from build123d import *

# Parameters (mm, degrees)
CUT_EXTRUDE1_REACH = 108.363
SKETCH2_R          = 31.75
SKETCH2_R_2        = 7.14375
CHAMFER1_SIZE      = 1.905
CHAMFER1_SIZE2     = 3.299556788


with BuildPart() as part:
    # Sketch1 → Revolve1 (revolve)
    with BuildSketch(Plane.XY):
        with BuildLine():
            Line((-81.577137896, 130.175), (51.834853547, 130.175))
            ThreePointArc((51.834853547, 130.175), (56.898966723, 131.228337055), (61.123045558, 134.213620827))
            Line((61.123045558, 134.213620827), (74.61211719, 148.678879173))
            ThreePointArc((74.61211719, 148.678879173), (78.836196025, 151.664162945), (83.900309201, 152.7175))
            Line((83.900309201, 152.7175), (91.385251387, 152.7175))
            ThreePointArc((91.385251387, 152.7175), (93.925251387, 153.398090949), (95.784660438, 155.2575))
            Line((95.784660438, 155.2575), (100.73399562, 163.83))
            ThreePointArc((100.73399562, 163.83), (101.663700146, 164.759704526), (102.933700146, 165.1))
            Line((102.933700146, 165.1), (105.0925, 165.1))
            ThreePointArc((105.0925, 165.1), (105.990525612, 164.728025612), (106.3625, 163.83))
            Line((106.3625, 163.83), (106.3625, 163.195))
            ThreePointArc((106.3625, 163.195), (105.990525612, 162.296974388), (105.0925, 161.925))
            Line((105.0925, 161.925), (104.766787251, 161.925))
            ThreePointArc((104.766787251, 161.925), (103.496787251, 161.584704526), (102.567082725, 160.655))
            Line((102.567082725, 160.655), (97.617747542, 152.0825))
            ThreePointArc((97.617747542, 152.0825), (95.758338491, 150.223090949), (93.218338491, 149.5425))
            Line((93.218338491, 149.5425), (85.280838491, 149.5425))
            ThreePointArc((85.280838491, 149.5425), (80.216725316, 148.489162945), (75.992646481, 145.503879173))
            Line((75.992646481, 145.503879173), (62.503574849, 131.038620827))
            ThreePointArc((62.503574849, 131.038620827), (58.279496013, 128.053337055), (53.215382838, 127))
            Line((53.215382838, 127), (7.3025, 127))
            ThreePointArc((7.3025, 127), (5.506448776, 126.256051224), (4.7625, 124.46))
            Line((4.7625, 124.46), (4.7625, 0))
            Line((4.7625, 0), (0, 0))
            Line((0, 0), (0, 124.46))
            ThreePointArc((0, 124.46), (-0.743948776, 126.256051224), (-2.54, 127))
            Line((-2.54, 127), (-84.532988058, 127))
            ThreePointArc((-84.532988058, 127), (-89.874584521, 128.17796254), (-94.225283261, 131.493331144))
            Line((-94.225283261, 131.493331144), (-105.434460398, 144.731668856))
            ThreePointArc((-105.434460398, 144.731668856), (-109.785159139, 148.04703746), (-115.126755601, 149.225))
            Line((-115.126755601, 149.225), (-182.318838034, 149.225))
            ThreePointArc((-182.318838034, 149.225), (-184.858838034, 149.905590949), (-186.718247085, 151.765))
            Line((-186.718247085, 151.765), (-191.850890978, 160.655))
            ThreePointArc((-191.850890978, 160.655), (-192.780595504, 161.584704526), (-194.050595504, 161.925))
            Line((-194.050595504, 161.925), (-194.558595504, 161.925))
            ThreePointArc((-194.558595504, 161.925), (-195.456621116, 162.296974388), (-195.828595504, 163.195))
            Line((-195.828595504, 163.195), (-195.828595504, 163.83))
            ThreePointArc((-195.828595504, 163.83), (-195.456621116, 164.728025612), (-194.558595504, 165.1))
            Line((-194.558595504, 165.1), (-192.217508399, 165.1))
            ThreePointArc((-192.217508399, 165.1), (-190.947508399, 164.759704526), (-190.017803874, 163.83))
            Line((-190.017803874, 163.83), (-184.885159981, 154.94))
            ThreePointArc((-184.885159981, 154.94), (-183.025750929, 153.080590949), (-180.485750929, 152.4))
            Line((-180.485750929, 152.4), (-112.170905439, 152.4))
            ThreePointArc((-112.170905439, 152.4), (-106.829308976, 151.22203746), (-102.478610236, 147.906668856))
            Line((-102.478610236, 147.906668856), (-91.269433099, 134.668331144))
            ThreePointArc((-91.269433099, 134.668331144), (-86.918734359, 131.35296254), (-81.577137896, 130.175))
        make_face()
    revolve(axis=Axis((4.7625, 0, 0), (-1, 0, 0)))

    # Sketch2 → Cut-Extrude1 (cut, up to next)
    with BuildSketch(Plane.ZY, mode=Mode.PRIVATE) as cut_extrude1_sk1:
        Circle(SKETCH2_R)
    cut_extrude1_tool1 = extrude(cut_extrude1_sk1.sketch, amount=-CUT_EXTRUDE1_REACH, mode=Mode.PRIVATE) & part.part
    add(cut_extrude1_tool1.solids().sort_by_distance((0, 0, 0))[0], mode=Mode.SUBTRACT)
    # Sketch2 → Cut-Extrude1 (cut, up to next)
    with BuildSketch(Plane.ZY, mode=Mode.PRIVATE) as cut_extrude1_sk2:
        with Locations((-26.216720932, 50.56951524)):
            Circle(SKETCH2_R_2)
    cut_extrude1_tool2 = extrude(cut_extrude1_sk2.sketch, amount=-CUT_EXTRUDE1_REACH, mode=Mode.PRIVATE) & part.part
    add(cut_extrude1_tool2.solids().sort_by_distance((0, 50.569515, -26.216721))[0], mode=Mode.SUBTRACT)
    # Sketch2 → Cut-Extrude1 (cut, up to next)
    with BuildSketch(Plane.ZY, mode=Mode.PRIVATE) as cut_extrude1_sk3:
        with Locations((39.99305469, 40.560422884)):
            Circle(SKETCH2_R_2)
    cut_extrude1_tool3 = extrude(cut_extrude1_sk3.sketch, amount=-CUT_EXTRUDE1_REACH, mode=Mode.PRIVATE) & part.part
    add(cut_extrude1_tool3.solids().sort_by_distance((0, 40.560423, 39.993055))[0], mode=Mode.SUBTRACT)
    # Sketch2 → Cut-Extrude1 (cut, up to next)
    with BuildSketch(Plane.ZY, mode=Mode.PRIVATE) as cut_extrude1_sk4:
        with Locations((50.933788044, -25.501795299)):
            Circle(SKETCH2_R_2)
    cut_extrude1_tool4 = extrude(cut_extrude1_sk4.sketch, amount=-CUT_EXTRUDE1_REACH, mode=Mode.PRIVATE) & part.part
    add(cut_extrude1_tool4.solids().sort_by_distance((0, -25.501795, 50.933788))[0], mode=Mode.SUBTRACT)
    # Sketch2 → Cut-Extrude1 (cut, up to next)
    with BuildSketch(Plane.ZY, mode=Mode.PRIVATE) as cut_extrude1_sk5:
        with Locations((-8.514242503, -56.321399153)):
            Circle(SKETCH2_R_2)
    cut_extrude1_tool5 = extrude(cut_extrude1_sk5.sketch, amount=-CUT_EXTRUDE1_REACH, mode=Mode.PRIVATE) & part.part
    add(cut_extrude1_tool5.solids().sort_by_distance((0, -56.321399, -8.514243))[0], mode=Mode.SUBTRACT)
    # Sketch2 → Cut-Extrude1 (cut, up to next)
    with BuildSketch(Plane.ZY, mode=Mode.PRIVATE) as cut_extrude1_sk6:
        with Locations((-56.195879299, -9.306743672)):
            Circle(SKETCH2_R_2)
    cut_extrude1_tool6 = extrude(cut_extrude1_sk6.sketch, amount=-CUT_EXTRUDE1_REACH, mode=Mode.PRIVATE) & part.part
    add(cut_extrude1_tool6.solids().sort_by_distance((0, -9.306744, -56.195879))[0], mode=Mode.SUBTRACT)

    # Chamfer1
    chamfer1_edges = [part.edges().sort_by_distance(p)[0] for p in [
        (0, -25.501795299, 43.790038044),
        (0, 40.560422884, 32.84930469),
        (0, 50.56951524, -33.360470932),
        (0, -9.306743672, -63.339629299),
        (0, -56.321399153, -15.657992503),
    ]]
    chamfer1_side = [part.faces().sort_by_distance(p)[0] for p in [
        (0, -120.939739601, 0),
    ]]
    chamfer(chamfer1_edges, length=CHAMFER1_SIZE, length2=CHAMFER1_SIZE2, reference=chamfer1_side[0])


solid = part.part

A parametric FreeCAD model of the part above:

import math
import FreeCAD as App
import Part
import Sketcher

V = App.Vector
Q = App.Units.Quantity


def edges_at(feature, points):
    """Names of the edges that pass closest to the given points."""
    edges = feature.Shape.Edges
    near = lambda p: min(range(len(edges)), key=lambda i: edges[i].distToShape(Part.Vertex(*p))[0])
    return sorted({f"Edge{near(p) + 1}" for p in points})

doc = App.newDocument("Part")
body = doc.addObject("PartDesign::Body", "Body")

# Sketch on XY plane
sketch1 = body.newObject("Sketcher::SketchObject", "Sketch")
sketch1.AttachmentSupport = (doc.getObject("XY_Plane"), [""])
sketch1.MapMode = "FlatFace"
sketch1.addGeometry(Part.LineSegment(V(51.83, 130.18, 0), V(-81.58, 130.18, 0)), False)
sketch1.addGeometry(Part.ArcOfCircle(Part.Circle(V(-81.58, 142.88, 0), V(0, 0, 1), 12.7), math.radians(-140), math.radians(-90)), False)
sketch1.addGeometry(Part.LineSegment(V(-91.27, 134.67, 0), V(-102.48, 147.91, 0)), False)
sketch1.addGeometry(Part.ArcOfCircle(Part.Circle(V(-112.17, 139.7, 0), V(0, 0, 1), 12.7), math.radians(40), math.radians(90)), False)
sketch1.addGeometry(Part.LineSegment(V(-112.17, 152.4, 0), V(-180.49, 152.4, 0)), False)
sketch1.addGeometry(Part.ArcOfCircle(Part.Circle(V(-180.49, 157.48, 0), V(0, 0, 1), 5.08), math.radians(-150), math.radians(-90)), False)
sketch1.addGeometry(Part.LineSegment(V(-184.89, 154.94, 0), V(-190.02, 163.83, 0)), False)
sketch1.addGeometry(Part.ArcOfCircle(Part.Circle(V(-192.22, 162.56, 0), V(0, 0, 1), 2.54), math.radians(30), math.radians(90)), False)
sketch1.addGeometry(Part.LineSegment(V(-192.22, 165.1, 0), V(-194.56, 165.1, 0)), False)
sketch1.addGeometry(Part.ArcOfCircle(Part.Circle(V(-194.56, 163.83, 0), V(0, 0, 1), 1.27), math.radians(90), math.radians(180)), False)
sketch1.addGeometry(Part.LineSegment(V(-195.83, 163.83, 0), V(-195.83, 163.19, 0)), False)
sketch1.addGeometry(Part.ArcOfCircle(Part.Circle(V(-194.56, 163.19, 0), V(0, 0, 1), 1.27), math.radians(180), math.radians(270)), False)
sketch1.addGeometry(Part.LineSegment(V(-194.56, 161.93, 0), V(-194.05, 161.93, 0)), False)
sketch1.addGeometry(Part.ArcOfCircle(Part.Circle(V(-194.05, 159.39, 0), V(0, 0, 1), 2.54), math.radians(30), math.radians(90)), False)
sketch1.addGeometry(Part.LineSegment(V(-191.85, 160.66, 0), V(-186.72, 151.76, 0)), False)
sketch1.addGeometry(Part.ArcOfCircle(Part.Circle(V(-182.32, 154.31, 0), V(0, 0, 1), 5.08), math.radians(-150), math.radians(-90)), False)
sketch1.addGeometry(Part.LineSegment(V(-182.32, 149.22, 0), V(-115.13, 149.22, 0)), False)
sketch1.addGeometry(Part.ArcOfCircle(Part.Circle(V(-115.13, 136.52, 0), V(0, 0, 1), 12.7), math.radians(40), math.radians(90)), False)
sketch1.addGeometry(Part.LineSegment(V(-105.43, 144.73, 0), V(-94.23, 131.49, 0)), False)
sketch1.addGeometry(Part.ArcOfCircle(Part.Circle(V(-84.53, 139.7, 0), V(0, 0, 1), 12.7), math.radians(-140), math.radians(-90)), False)
sketch1.addGeometry(Part.LineSegment(V(-84.53, 127, 0), V(-2.54, 127, 0)), False)
sketch1.addGeometry(Part.ArcOfCircle(Part.Circle(V(-2.54, 124.46, 0), V(0, 0, 1), 2.54), math.radians(0), math.radians(90)), False)
sketch1.addGeometry(Part.LineSegment(V(0, 124.46, 0), V(0, 0, 0)), False)
sketch1.addGeometry(Part.LineSegment(V(0, 0, 0), V(4.76, 0, 0)), False)
sketch1.addGeometry(Part.LineSegment(V(4.76, 0, 0), V(4.76, 124.46, 0)), False)
sketch1.addGeometry(Part.ArcOfCircle(Part.Circle(V(7.3, 124.46, 0), V(0, 0, 1), 2.54), math.radians(90), math.radians(180)), False)
sketch1.addGeometry(Part.LineSegment(V(7.3, 127, 0), V(53.22, 127, 0)), False)
sketch1.addGeometry(Part.ArcOfCircle(Part.Circle(V(53.22, 139.7, 0), V(0, 0, 1), 12.7), math.radians(-90), math.radians(-43)), False)
sketch1.addGeometry(Part.LineSegment(V(62.5, 131.04, 0), V(75.99, 145.5, 0)), False)
sketch1.addGeometry(Part.ArcOfCircle(Part.Circle(V(85.28, 136.84, 0), V(0, 0, 1), 12.7), math.radians(90), math.radians(137)), False)
sketch1.addGeometry(Part.LineSegment(V(85.28, 149.54, 0), V(93.22, 149.54, 0)), False)
sketch1.addGeometry(Part.ArcOfCircle(Part.Circle(V(93.22, 154.62, 0), V(0, 0, 1), 5.08), math.radians(-90), math.radians(-30)), False)
sketch1.addGeometry(Part.LineSegment(V(97.62, 152.08, 0), V(102.57, 160.66, 0)), False)
sketch1.addGeometry(Part.ArcOfCircle(Part.Circle(V(104.77, 159.39, 0), V(0, 0, 1), 2.54), math.radians(90), math.radians(150)), False)
sketch1.addGeometry(Part.LineSegment(V(104.77, 161.93, 0), V(105.09, 161.93, 0)), False)
sketch1.addGeometry(Part.ArcOfCircle(Part.Circle(V(105.09, 163.19, 0), V(0, 0, 1), 1.27), math.radians(-90), math.radians(0)), False)
sketch1.addGeometry(Part.LineSegment(V(106.36, 163.19, 0), V(106.36, 163.83, 0)), False)
sketch1.addGeometry(Part.ArcOfCircle(Part.Circle(V(105.09, 163.83, 0), V(0, 0, 1), 1.27), math.radians(0), math.radians(90)), False)
sketch1.addGeometry(Part.LineSegment(V(105.09, 165.1, 0), V(102.93, 165.1, 0)), False)
sketch1.addGeometry(Part.ArcOfCircle(Part.Circle(V(102.93, 162.56, 0), V(0, 0, 1), 2.54), math.radians(90), math.radians(150)), False)
sketch1.addGeometry(Part.LineSegment(V(100.73, 163.83, 0), V(95.78, 155.26, 0)), False)
sketch1.addGeometry(Part.ArcOfCircle(Part.Circle(V(91.39, 157.8, 0), V(0, 0, 1), 5.08), math.radians(-90), math.radians(-30)), False)
sketch1.addGeometry(Part.LineSegment(V(91.39, 152.72, 0), V(83.9, 152.72, 0)), False)
sketch1.addGeometry(Part.ArcOfCircle(Part.Circle(V(83.9, 140.02, 0), V(0, 0, 1), 12.7), math.radians(90), math.radians(137)), False)
sketch1.addGeometry(Part.LineSegment(V(74.61, 148.68, 0), V(61.12, 134.21, 0)), False)
sketch1.addGeometry(Part.ArcOfCircle(Part.Circle(V(51.83, 142.87, 0), V(0, 0, 1), 12.7), math.radians(-90), math.radians(-43)), False)
sketch1.addConstraint(Sketcher.Constraint("Tangent", 0, 2, 1, 2))
sketch1.addConstraint(Sketcher.Constraint("Tangent", 1, 1, 2, 1))
sketch1.addConstraint(Sketcher.Constraint("Tangent", 2, 2, 3, 1))
sketch1.addConstraint(Sketcher.Constraint("Tangent", 3, 2, 4, 1))
sketch1.addConstraint(Sketcher.Constraint("Tangent", 4, 2, 5, 2))
sketch1.addConstraint(Sketcher.Constraint("Tangent", 5, 1, 6, 1))
sketch1.addConstraint(Sketcher.Constraint("Tangent", 6, 2, 7, 1))
sketch1.addConstraint(Sketcher.Constraint("Tangent", 7, 2, 8, 1))
sketch1.addConstraint(Sketcher.Constraint("Tangent", 8, 2, 9, 1))
sketch1.addConstraint(Sketcher.Constraint("Tangent", 9, 2, 10, 1))
sketch1.addConstraint(Sketcher.Constraint("Tangent", 10, 2, 11, 1))
sketch1.addConstraint(Sketcher.Constraint("Tangent", 11, 2, 12, 1))
sketch1.addConstraint(Sketcher.Constraint("Tangent", 12, 2, 13, 2))
sketch1.addConstraint(Sketcher.Constraint("Tangent", 13, 1, 14, 1))
sketch1.addConstraint(Sketcher.Constraint("Tangent", 14, 2, 15, 1))
sketch1.addConstraint(Sketcher.Constraint("Tangent", 15, 2, 16, 1))
sketch1.addConstraint(Sketcher.Constraint("Tangent", 16, 2, 17, 2))
sketch1.addConstraint(Sketcher.Constraint("Tangent", 17, 1, 18, 1))
sketch1.addConstraint(Sketcher.Constraint("Tangent", 18, 2, 19, 1))
sketch1.addConstraint(Sketcher.Constraint("Tangent", 19, 2, 20, 1))
sketch1.addConstraint(Sketcher.Constraint("Tangent", 20, 2, 21, 2))
sketch1.addConstraint(Sketcher.Constraint("Tangent", 21, 1, 22, 1))
sketch1.addConstraint(Sketcher.Constraint("Coincident", 22, 2, 23, 1))
sketch1.addConstraint(Sketcher.Constraint("Coincident", 23, 2, 24, 1))
sketch1.addConstraint(Sketcher.Constraint("Tangent", 24, 2, 25, 2))
sketch1.addConstraint(Sketcher.Constraint("Tangent", 25, 1, 26, 1))
sketch1.addConstraint(Sketcher.Constraint("Tangent", 26, 2, 27, 1))
sketch1.addConstraint(Sketcher.Constraint("Tangent", 27, 2, 28, 1))
sketch1.addConstraint(Sketcher.Constraint("Tangent", 28, 2, 29, 2))
sketch1.addConstraint(Sketcher.Constraint("Tangent", 29, 1, 30, 1))
sketch1.addConstraint(Sketcher.Constraint("Tangent", 30, 2, 31, 1))
sketch1.addConstraint(Sketcher.Constraint("Tangent", 31, 2, 32, 1))
sketch1.addConstraint(Sketcher.Constraint("Tangent", 32, 2, 33, 2))
sketch1.addConstraint(Sketcher.Constraint("Tangent", 33, 1, 34, 1))
sketch1.addConstraint(Sketcher.Constraint("Tangent", 34, 2, 35, 1))
sketch1.addConstraint(Sketcher.Constraint("Tangent", 35, 2, 36, 1))
sketch1.addConstraint(Sketcher.Constraint("Tangent", 36, 2, 37, 1))
sketch1.addConstraint(Sketcher.Constraint("Tangent", 37, 2, 38, 1))
sketch1.addConstraint(Sketcher.Constraint("Tangent", 38, 2, 39, 1))
sketch1.addConstraint(Sketcher.Constraint("Tangent", 39, 2, 40, 1))
sketch1.addConstraint(Sketcher.Constraint("Tangent", 40, 2, 41, 2))
sketch1.addConstraint(Sketcher.Constraint("Tangent", 41, 1, 42, 1))
sketch1.addConstraint(Sketcher.Constraint("Tangent", 42, 2, 43, 1))
sketch1.addConstraint(Sketcher.Constraint("Tangent", 43, 2, 44, 1))
sketch1.addConstraint(Sketcher.Constraint("Tangent", 44, 2, 45, 2))
sketch1.addConstraint(Sketcher.Constraint("Tangent", 45, 1, 0, 1))
sketch1.addConstraint(Sketcher.Constraint("Horizontal", 0))
sketch1.addConstraint(Sketcher.Constraint("Horizontal", 4))
sketch1.addConstraint(Sketcher.Constraint("Horizontal", 8))
sketch1.addConstraint(Sketcher.Constraint("Vertical", 10))
sketch1.addConstraint(Sketcher.Constraint("Horizontal", 12))
sketch1.addConstraint(Sketcher.Constraint("Horizontal", 16))
sketch1.addConstraint(Sketcher.Constraint("Horizontal", 20))
sketch1.addConstraint(Sketcher.Constraint("Vertical", 22))
sketch1.addConstraint(Sketcher.Constraint("Horizontal", 23))
sketch1.addConstraint(Sketcher.Constraint("Vertical", 24))
sketch1.addConstraint(Sketcher.Constraint("Horizontal", 26))
sketch1.addConstraint(Sketcher.Constraint("Horizontal", 30))
sketch1.addConstraint(Sketcher.Constraint("Horizontal", 34))
sketch1.addConstraint(Sketcher.Constraint("Vertical", 36))
sketch1.addConstraint(Sketcher.Constraint("Horizontal", 38))
sketch1.addConstraint(Sketcher.Constraint("Horizontal", 42))
sketch1.addConstraint(Sketcher.Constraint("Coincident", 22, 2, -1, 1))
sketch1.addConstraint(Sketcher.Constraint("Equal", 1, 3))
sketch1.addConstraint(Sketcher.Constraint("Equal", 9, 11))
sketch1.addConstraint(Sketcher.Constraint("Equal", 7, 13))
sketch1.addConstraint(Sketcher.Constraint("Equal", 5, 15))
sketch1.addConstraint(Sketcher.Constraint("Equal", 3, 17))
sketch1.addConstraint(Sketcher.Constraint("Equal", 17, 19))
sketch1.addConstraint(Sketcher.Constraint("Equal", 13, 21))
sketch1.addConstraint(Sketcher.Constraint("Equal", 21, 25))
sketch1.addConstraint(Sketcher.Constraint("Equal", 19, 27))
sketch1.addConstraint(Sketcher.Constraint("Equal", 27, 29))
sketch1.addConstraint(Sketcher.Constraint("Equal", 15, 31))
sketch1.addConstraint(Sketcher.Constraint("Equal", 25, 33))
sketch1.addConstraint(Sketcher.Constraint("Equal", 11, 35))
sketch1.addConstraint(Sketcher.Constraint("Equal", 35, 37))
sketch1.addConstraint(Sketcher.Constraint("Equal", 33, 39))
sketch1.addConstraint(Sketcher.Constraint("Equal", 31, 41))
sketch1.addConstraint(Sketcher.Constraint("Equal", 29, 43))
sketch1.addConstraint(Sketcher.Constraint("Equal", 43, 45))
sketch1.addConstraint(Sketcher.Constraint("Parallel", 6, 14))
sketch1.addConstraint(Sketcher.Constraint("Parallel", 2, 18))
sketch1.addConstraint(Sketcher.Constraint("Parallel", 32, 40))
sketch1.addConstraint(Sketcher.Constraint("Parallel", 28, 44))
sketch1.addConstraint(Sketcher.Constraint("Horizontal", 3, 3, 19, 3))
sketch1.addConstraint(Sketcher.Constraint("Horizontal", 21, 3, 25, 3))
sketch1.addConstraint(Sketcher.Constraint("Horizontal", 13, 3, 33, 3))
sketch1.addConstraint(Sketcher.Constraint("Horizontal", 9, 3, 37, 3))
sketch1.addConstraint(Sketcher.Constraint("Horizontal", 37, 3, 6, 2))
sketch1.addConstraint(Sketcher.Constraint("Horizontal", 13, 1, 32, 2))
sketch1.addConstraint(Sketcher.Constraint("Equal", 6, 14))
sketch1.addConstraint(Sketcher.Constraint("Equal", 2, 18))
sketch1.addConstraint(Sketcher.Constraint("Equal", 32, 40))
sketch1.addConstraint(Sketcher.Constraint("Radius", 1, Q("0.5 in")))
sketch1.addConstraint(Sketcher.Constraint("Radius", 5, Q("0.2 in")))
sketch1.addConstraint(Sketcher.Constraint("Radius", 7, Q("0.1 in")))
sketch1.addConstraint(Sketcher.Constraint("Radius", 9, Q("0.05 in")))
sketch1.addConstraint(Sketcher.Constraint("DistanceY", 22, 2, 22, 1, Q("4.9 in")))
sketch1.addConstraint(Sketcher.Constraint("Angle", 28, Q("47 deg")))
sketch1.addConstraint(Sketcher.Constraint("DistanceX", 12, 1, 12, 2, Q("0.02 in")))
sketch1.addConstraint(Sketcher.Constraint("DistanceY", -1, 1, 7, 3, Q("6.4 in")))
sketch1.addConstraint(Sketcher.Constraint("DistanceX", 23, 1, 23, 2, Q("0.1875 in")))
sketch1.addConstraint(Sketcher.Constraint("DistanceX", 30, 1, 30, 2, Q("0.3125 in")))
sketch1.addConstraint(Sketcher.Constraint("DistanceY", 10, 2, 10, 1, Q("0.025 in")))
sketch1.addConstraint(Sketcher.Constraint("DistanceX", -1, 1, 35, 2, Q("4.1875 in")))
sketch1.addConstraint(Sketcher.Constraint("DistanceX", 38, 2, 38, 1, 2.1588))
sketch1.addConstraint(Sketcher.Constraint("DistanceY", -1, 1, 29, 3, Q("5.3875 in")))
sketch1.addConstraint(Sketcher.Constraint("DistanceX", 0, 2, 0, 1, 133.411991))
sketch1.addConstraint(Sketcher.Constraint("DistanceX", 20, 1, 20, 2, 81.992988))
sketch1.addConstraint(Sketcher.Constraint("DistanceX", 4, 2, 4, 1, 68.314845))
sketch1.addConstraint(Sketcher.Constraint("DistanceX", 8, 2, 8, 1, 2.341087))
sketch1.addConstraint(Sketcher.Constraint("DistanceX", 16, 1, 16, 2, 67.192082))
sketch1.addConstraint(Sketcher.Constraint("DistanceX", 26, 1, 26, 2, 45.912883))
sketch1.addConstraint(Sketcher.Constraint("DistanceX", 5, 3, -1, 1, 180.485751))
revolution = body.newObject("PartDesign::Revolution", "Revolution")
revolution.Profile = sketch1
revolution.ReferenceAxis = (sketch1, ["H_Axis"])
revolution.Angle = 360

# Sketch on YZ plane
sketch2 = body.newObject("Sketcher::SketchObject", "Sketch001")
sketch2.AttachmentSupport = (doc.getObject("YZ_Plane"), [""])
sketch2.MapMode = "FlatFace"
sketch2.addGeometry(Part.Circle(V(0, 0, 0), V(0, 0, 1), 32), False)
sketch2.addConstraint(Sketcher.Constraint("Coincident", 0, 3, -1, 1))
sketch2.addConstraint(Sketcher.Constraint("Diameter", 0, Q("2.5 in")))
pocket1 = body.newObject("PartDesign::Pocket", "Pocket")
pocket1.Profile = sketch2
pocket1.Type = "UpToFirst"
pocket1.Reversed = True

# Sketch on YZ plane
sketch3 = body.newObject("Sketcher::SketchObject", "Sketch002")
sketch3.AttachmentSupport = (doc.getObject("YZ_Plane"), [""])
sketch3.MapMode = "FlatFace"
sketch3.addGeometry(Part.Circle(V(51, -26, 0), V(0, 0, 1), 7), False)
sketch3.addConstraint(Sketcher.Constraint("Diameter", 0, Q("0.5625 in")))
sketch3.addConstraint(Sketcher.Constraint("DistanceY", 0, 3, -1, 1, 26.216721))
sketch3.addConstraint(Sketcher.Constraint("DistanceX", -1, 1, 0, 3, 50.569515))
pocket2 = body.newObject("PartDesign::Pocket", "Pocket001")
pocket2.Profile = sketch3
pocket2.Type = "UpToFirst"
pocket2.Reversed = True

# Sketch on YZ plane
sketch4 = body.newObject("Sketcher::SketchObject", "Sketch003")
sketch4.AttachmentSupport = (doc.getObject("YZ_Plane"), [""])
sketch4.MapMode = "FlatFace"
sketch4.addGeometry(Part.Circle(V(41, 40, 0), V(0, 0, 1), 7), False)
sketch4.addConstraint(Sketcher.Constraint("Diameter", 0, Q("0.5625 in")))
sketch4.addConstraint(Sketcher.Constraint("DistanceX", -1, 1, 0, 3, 40.560423))
sketch4.addConstraint(Sketcher.Constraint("DistanceY", -1, 1, 0, 3, 39.993055))
pocket3 = body.newObject("PartDesign::Pocket", "Pocket002")
pocket3.Profile = sketch4
pocket3.Type = "UpToFirst"
pocket3.Reversed = True

# Sketch on YZ plane
sketch5 = body.newObject("Sketcher::SketchObject", "Sketch004")
sketch5.AttachmentSupport = (doc.getObject("YZ_Plane"), [""])
sketch5.MapMode = "FlatFace"
sketch5.addGeometry(Part.Circle(V(-26, 51, 0), V(0, 0, 1), 7), False)
sketch5.addConstraint(Sketcher.Constraint("Diameter", 0, Q("0.5625 in")))
sketch5.addConstraint(Sketcher.Constraint("DistanceY", -1, 1, 0, 3, 50.933788))
sketch5.addConstraint(Sketcher.Constraint("DistanceX", 0, 3, -1, 1, 25.501795))
pocket4 = body.newObject("PartDesign::Pocket", "Pocket003")
pocket4.Profile = sketch5
pocket4.Type = "UpToFirst"
pocket4.Reversed = True

# Sketch on YZ plane
sketch6 = body.newObject("Sketcher::SketchObject", "Sketch005")
sketch6.AttachmentSupport = (doc.getObject("YZ_Plane"), [""])
sketch6.MapMode = "FlatFace"
sketch6.addGeometry(Part.Circle(V(-56, -9, 0), V(0, 0, 1), 7), False)
sketch6.addConstraint(Sketcher.Constraint("Diameter", 0, Q("0.5625 in")))
sketch6.addConstraint(Sketcher.Constraint("DistanceX", 0, 3, -1, 1, 56.321399))
sketch6.addConstraint(Sketcher.Constraint("DistanceY", 0, 3, -1, 1, 8.514243))
pocket5 = body.newObject("PartDesign::Pocket", "Pocket004")
pocket5.Profile = sketch6
pocket5.Type = "UpToFirst"
pocket5.Reversed = True

# Sketch on YZ plane
sketch7 = body.newObject("Sketcher::SketchObject", "Sketch006")
sketch7.AttachmentSupport = (doc.getObject("YZ_Plane"), [""])
sketch7.MapMode = "FlatFace"
sketch7.addGeometry(Part.Circle(V(-9, -56, 0), V(0, 0, 1), 7), False)
sketch7.addConstraint(Sketcher.Constraint("Diameter", 0, Q("0.5625 in")))
sketch7.addConstraint(Sketcher.Constraint("DistanceY", 0, 3, -1, 1, 56.195879))
sketch7.addConstraint(Sketcher.Constraint("DistanceX", 0, 3, -1, 1, 9.306744))
pocket6 = body.newObject("PartDesign::Pocket", "Pocket005")
pocket6.Profile = sketch7
pocket6.Type = "UpToFirst"
pocket6.Reversed = True
doc.recompute()

chamfer = body.newObject("PartDesign::Chamfer", "Chamfer")
chamfer.Base = (pocket6, edges_at(pocket6, [
    (0, -25.502, 43.79),
    (0, 40.56, 32.849),
    (0, 50.57, -33.36),
    (0, -9.307, -63.34),
    (0, -56.321, -15.658),
]))
chamfer.ChamferType = "Two distances"
chamfer.Size = Q("0.075 in")
chamfer.Size2 = 3.299557

doc.recompute()
